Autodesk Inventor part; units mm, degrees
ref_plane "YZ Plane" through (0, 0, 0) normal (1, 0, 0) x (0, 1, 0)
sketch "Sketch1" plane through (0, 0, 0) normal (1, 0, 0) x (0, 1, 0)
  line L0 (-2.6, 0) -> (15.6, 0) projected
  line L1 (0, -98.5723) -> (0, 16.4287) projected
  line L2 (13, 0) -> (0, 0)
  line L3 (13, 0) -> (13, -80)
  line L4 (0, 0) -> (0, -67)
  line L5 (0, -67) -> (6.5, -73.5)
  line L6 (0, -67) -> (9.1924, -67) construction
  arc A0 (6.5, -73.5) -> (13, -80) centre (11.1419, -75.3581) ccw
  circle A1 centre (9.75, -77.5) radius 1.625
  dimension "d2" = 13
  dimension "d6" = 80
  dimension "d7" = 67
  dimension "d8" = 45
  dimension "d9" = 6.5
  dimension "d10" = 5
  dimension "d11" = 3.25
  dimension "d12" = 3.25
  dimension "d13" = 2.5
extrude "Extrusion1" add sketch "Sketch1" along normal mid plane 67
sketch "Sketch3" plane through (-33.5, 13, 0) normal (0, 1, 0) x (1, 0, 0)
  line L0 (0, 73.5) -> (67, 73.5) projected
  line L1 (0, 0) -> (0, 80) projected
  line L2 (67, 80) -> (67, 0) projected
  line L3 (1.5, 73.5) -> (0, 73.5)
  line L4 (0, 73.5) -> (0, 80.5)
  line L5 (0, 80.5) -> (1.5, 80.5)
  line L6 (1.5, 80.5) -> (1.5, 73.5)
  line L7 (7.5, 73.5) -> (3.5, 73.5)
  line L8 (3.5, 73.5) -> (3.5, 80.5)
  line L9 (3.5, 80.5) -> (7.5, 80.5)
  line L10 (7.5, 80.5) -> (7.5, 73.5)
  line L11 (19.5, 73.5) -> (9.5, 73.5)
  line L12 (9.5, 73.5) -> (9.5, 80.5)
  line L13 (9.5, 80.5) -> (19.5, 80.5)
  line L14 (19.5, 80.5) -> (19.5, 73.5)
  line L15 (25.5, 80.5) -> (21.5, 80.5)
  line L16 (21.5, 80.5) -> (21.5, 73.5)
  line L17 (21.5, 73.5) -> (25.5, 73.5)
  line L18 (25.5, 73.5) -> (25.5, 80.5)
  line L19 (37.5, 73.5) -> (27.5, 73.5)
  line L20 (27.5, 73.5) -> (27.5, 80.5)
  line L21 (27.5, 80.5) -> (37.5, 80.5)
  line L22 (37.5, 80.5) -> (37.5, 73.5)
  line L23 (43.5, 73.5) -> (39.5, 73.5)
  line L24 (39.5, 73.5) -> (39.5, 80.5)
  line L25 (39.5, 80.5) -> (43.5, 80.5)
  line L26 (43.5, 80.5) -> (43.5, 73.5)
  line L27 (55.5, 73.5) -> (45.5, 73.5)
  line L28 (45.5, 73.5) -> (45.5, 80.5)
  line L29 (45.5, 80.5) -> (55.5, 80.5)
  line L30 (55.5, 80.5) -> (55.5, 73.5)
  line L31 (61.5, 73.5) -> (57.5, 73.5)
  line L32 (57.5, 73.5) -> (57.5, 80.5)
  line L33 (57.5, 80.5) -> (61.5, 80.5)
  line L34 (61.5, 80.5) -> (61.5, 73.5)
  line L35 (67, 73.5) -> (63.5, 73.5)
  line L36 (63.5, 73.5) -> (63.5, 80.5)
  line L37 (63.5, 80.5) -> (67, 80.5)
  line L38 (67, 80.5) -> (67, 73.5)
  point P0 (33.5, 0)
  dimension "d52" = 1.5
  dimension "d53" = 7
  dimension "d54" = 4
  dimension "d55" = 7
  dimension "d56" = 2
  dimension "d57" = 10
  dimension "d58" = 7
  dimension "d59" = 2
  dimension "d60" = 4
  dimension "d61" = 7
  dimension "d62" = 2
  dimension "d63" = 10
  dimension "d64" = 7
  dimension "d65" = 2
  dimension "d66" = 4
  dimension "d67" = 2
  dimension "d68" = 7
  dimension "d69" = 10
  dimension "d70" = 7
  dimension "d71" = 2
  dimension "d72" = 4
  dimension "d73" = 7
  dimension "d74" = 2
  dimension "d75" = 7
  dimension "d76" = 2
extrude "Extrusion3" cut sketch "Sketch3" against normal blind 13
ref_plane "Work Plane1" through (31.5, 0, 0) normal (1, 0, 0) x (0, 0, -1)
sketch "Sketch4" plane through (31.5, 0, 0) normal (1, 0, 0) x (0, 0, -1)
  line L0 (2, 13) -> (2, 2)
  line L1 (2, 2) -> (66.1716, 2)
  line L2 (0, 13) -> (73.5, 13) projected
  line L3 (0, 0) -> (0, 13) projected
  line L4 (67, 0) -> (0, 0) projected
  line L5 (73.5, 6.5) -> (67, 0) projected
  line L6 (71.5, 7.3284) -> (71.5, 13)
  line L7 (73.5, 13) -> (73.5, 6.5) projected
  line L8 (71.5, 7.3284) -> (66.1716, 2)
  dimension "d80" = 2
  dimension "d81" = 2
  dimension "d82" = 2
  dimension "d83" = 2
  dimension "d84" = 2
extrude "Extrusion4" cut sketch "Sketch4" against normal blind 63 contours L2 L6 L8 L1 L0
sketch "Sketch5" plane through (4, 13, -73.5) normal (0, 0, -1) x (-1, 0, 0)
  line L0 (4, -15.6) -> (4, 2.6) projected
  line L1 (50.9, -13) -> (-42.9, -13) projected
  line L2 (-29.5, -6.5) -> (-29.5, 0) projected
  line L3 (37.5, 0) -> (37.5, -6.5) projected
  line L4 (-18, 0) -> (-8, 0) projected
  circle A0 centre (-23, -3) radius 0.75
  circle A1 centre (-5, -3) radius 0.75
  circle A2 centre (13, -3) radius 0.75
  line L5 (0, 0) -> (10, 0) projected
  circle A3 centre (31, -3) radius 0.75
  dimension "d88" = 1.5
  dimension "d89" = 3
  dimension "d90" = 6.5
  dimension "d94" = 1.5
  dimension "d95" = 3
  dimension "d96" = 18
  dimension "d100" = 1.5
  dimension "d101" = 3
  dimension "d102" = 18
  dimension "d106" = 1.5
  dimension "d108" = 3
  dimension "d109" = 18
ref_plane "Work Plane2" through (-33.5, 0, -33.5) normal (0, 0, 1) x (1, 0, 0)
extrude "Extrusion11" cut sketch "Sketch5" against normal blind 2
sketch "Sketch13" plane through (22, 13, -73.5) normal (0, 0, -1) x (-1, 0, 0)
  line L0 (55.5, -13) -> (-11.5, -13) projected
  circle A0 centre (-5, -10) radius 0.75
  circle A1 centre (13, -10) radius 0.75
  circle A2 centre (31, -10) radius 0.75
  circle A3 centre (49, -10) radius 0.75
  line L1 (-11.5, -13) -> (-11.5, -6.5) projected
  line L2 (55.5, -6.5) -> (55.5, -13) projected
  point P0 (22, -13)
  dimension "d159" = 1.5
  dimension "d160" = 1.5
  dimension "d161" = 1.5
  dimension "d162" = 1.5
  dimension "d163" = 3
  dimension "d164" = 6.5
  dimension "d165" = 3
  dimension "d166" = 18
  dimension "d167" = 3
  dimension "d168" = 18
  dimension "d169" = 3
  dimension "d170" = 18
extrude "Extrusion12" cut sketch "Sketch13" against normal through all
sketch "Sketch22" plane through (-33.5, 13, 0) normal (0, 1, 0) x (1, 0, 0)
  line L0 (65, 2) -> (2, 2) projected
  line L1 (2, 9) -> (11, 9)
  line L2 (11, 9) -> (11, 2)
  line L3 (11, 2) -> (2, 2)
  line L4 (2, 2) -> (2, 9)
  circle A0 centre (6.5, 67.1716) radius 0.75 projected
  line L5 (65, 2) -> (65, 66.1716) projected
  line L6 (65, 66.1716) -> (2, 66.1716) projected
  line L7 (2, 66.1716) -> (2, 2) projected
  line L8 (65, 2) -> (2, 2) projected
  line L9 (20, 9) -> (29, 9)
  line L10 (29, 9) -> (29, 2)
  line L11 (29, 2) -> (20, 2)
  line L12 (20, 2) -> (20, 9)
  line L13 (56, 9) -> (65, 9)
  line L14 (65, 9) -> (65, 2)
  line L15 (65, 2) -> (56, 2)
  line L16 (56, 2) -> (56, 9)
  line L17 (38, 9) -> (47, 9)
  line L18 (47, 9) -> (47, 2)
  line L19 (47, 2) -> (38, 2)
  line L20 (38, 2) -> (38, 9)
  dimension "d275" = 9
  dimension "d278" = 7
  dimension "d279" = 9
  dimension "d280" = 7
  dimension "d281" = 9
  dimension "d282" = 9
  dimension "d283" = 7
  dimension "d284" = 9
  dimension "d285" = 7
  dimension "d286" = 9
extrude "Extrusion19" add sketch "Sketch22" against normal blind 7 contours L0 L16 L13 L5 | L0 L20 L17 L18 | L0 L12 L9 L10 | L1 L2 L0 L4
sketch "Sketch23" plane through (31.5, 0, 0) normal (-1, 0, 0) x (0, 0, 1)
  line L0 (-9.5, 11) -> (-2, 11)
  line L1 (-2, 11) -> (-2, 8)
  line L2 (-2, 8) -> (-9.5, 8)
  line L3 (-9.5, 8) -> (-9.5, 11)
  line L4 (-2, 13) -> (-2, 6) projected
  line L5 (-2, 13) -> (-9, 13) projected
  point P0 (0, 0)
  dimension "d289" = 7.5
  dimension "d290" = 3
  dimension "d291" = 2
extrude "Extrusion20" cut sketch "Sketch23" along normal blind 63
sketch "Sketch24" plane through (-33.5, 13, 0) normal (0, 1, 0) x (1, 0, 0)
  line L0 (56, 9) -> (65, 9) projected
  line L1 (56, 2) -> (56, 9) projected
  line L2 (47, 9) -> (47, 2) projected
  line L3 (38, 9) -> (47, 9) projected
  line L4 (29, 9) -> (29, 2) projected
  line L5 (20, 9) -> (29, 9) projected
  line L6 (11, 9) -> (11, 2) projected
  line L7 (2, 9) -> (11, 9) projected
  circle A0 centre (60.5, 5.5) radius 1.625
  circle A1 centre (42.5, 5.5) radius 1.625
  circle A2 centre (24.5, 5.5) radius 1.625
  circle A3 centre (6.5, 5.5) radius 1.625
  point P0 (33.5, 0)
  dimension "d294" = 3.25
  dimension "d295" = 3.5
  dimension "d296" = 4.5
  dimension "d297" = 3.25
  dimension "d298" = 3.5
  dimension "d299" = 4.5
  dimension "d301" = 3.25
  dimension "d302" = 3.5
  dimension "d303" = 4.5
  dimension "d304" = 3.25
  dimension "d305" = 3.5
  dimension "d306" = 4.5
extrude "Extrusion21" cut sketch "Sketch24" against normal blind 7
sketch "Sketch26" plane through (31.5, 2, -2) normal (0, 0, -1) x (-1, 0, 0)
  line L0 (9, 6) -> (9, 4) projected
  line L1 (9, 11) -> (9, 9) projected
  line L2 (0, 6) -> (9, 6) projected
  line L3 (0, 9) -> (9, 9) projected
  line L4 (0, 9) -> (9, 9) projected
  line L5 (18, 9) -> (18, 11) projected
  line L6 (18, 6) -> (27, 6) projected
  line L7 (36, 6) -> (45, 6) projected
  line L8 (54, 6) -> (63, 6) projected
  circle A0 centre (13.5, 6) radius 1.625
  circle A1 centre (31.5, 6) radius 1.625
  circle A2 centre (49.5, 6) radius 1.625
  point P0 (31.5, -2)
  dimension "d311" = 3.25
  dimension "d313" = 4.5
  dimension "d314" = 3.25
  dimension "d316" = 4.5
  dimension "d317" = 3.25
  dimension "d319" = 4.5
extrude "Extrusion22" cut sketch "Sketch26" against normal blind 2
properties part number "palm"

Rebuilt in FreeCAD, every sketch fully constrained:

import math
import FreeCAD as App
import Part
import Sketcher
Q = App.Units.Quantity

doc = App.newDocument("Part")
body = doc.addObject("PartDesign::Body", "Body")

# Sketch on YZ plane
sketch1 = doc.addObject("Sketcher::SketchObject", "Sketch")
body.addObject(sketch1)
sketch1.AttachmentSupport = (doc.YZ_Plane, [""])
sketch1.MapMode = "FlatFace"
sketch1.addGeometry(Part.LineSegment(App.Vector(13, 0, 0), App.Vector(0, 0, 0)), False)
sketch1.addGeometry(Part.LineSegment(App.Vector(0, 0, 0), App.Vector(0, -67, 0)), False)
sketch1.addGeometry(Part.LineSegment(App.Vector(0, -67, 0), App.Vector(6.5, -73.5, 0)), False)
sketch1.addGeometry(Part.ArcOfCircle(Part.Circle(App.Vector(11.1419, -75.3581, 0), App.Vector(0, 0, 1), 4.999977), math.radians(158.184333), math.radians(291.815667)), False)
sketch1.addGeometry(Part.LineSegment(App.Vector(13, -80, 0), App.Vector(13, 0, 0)), False)
sketch1.addGeometry(Part.Circle(App.Vector(9.75, -77.5, 0), App.Vector(0, 0, 1), 1.625), False)
sketch1.addConstraint(Sketcher.Constraint("Coincident", 0, 2, 1, 1))
sketch1.addConstraint(Sketcher.Constraint("Coincident", 1, 2, 2, 1))
sketch1.addConstraint(Sketcher.Constraint("Coincident", 2, 2, 3, 1))
sketch1.addConstraint(Sketcher.Constraint("Coincident", 3, 2, 4, 1))
sketch1.addConstraint(Sketcher.Constraint("Coincident", 4, 2, 0, 1))
sketch1.addConstraint(Sketcher.Constraint("Horizontal", 0))
sketch1.addConstraint(Sketcher.Constraint("Vertical", 1))
sketch1.addConstraint(Sketcher.Constraint("Vertical", 4))
sketch1.addConstraint(Sketcher.Constraint("Coincident", 0, 2, -1, 1))
sketch1.addConstraint(Sketcher.Constraint("Radius", 3, 5.0))
sketch1.addConstraint(Sketcher.Constraint("Diameter", 5, 3.25))
sketch1.addConstraint(Sketcher.Constraint("DistanceX", 0, 2, 0, 1, 13.0))
sketch1.addConstraint(Sketcher.Constraint("DistanceY", 1, 2, 1, 1, 67.0))
sketch1.addConstraint(Sketcher.Constraint("DistanceY", 4, 1, 4, 2, 80.0))
sketch1.addConstraint(Sketcher.Constraint("Angle", 2, Q("-45 deg")))
sketch1.addConstraint(Sketcher.Constraint("DistanceX", -1, 1, 2, 2, 6.5))
sketch1.addConstraint(Sketcher.Constraint("DistanceY", 3, 2, 5, 3, 2.5))
sketch1.addConstraint(Sketcher.Constraint("DistanceX", 2, 2, 5, 3, 3.25))
pad1 = doc.addObject("PartDesign::Pad", "Pad")
body.addObject(pad1)
pad1.Profile = sketch1
pad1.Length = 67
pad1.Midplane = True

# Sketch on XZ plane
sketch2 = doc.addObject("Sketcher::SketchObject", "Sketch001")
body.addObject(sketch2)
sketch2.AttachmentSupport = (doc.XZ_Plane, [""])
sketch2.MapMode = "FlatFace"
sketch2.AttachmentOffset = App.Placement(App.Vector(0, 0, -13), App.Rotation())
sketch2.addGeometry(Part.LineSegment(App.Vector(-33.5, -80.5, 0), App.Vector(-33.5, -73.5, 0)), False)
sketch2.addGeometry(Part.LineSegment(App.Vector(-33.5, -73.5, 0), App.Vector(-32, -73.5, 0)), False)
sketch2.addGeometry(Part.LineSegment(App.Vector(-32, -73.5, 0), App.Vector(-32, -80.5, 0)), False)
sketch2.addGeometry(Part.LineSegment(App.Vector(-32, -80.5, 0), App.Vector(-33.5, -80.5, 0)), False)
sketch2.addGeometry(Part.LineSegment(App.Vector(30, -80.5, 0), App.Vector(30, -73.5, 0)), False)
sketch2.addGeometry(Part.LineSegment(App.Vector(30, -73.5, 0), App.Vector(33.5, -73.5, 0)), False)
sketch2.addGeometry(Part.LineSegment(App.Vector(33.5, -73.5, 0), App.Vector(33.5, -80.5, 0)), False)
sketch2.addGeometry(Part.LineSegment(App.Vector(33.5, -80.5, 0), App.Vector(30, -80.5, 0)), False)
sketch2.addGeometry(Part.LineSegment(App.Vector(24, -80.5, 0), App.Vector(24, -73.5, 0)), False)
sketch2.addGeometry(Part.LineSegment(App.Vector(24, -73.5, 0), App.Vector(28, -73.5, 0)), False)
sketch2.addGeometry(Part.LineSegment(App.Vector(28, -73.5, 0), App.Vector(28, -80.5, 0)), False)
sketch2.addGeometry(Part.LineSegment(App.Vector(28, -80.5, 0), App.Vector(24, -80.5, 0)), False)
sketch2.addGeometry(Part.LineSegment(App.Vector(12, -80.5, 0), App.Vector(12, -73.5, 0)), False)
sketch2.addGeometry(Part.LineSegment(App.Vector(12, -73.5, 0), App.Vector(22, -73.5, 0)), False)
sketch2.addGeometry(Part.LineSegment(App.Vector(22, -73.5, 0), App.Vector(22, -80.5, 0)), False)
sketch2.addGeometry(Part.LineSegment(App.Vector(22, -80.5, 0), App.Vector(12, -80.5, 0)), False)
sketch2.addGeometry(Part.LineSegment(App.Vector(6, -80.5, 0), App.Vector(6, -73.5, 0)), False)
sketch2.addGeometry(Part.LineSegment(App.Vector(6, -73.5, 0), App.Vector(10, -73.5, 0)), False)
sketch2.addGeometry(Part.LineSegment(App.Vector(10, -73.5, 0), App.Vector(10, -80.5, 0)), False)
sketch2.addGeometry(Part.LineSegment(App.Vector(10, -80.5, 0), App.Vector(6, -80.5, 0)), False)
sketch2.addGeometry(Part.LineSegment(App.Vector(-6, -80.5, 0), App.Vector(-6, -73.5, 0)), False)
sketch2.addGeometry(Part.LineSegment(App.Vector(-6, -73.5, 0), App.Vector(4, -73.5, 0)), False)
sketch2.addGeometry(Part.LineSegment(App.Vector(4, -73.5, 0), App.Vector(4, -80.5, 0)), False)
sketch2.addGeometry(Part.LineSegment(App.Vector(4, -80.5, 0), App.Vector(-6, -80.5, 0)), False)
sketch2.addGeometry(Part.LineSegment(App.Vector(-12, -80.5, 0), App.Vector(-12, -73.5, 0)), False)
sketch2.addGeometry(Part.LineSegment(App.Vector(-12, -73.5, 0), App.Vector(-8, -73.5, 0)), False)
sketch2.addGeometry(Part.LineSegment(App.Vector(-8, -73.5, 0), App.Vector(-8, -80.5, 0)), False)
sketch2.addGeometry(Part.LineSegment(App.Vector(-8, -80.5, 0), App.Vector(-12, -80.5, 0)), False)
sketch2.addGeometry(Part.LineSegment(App.Vector(-24, -80.5, 0), App.Vector(-24, -73.5, 0)), False)
sketch2.addGeometry(Part.LineSegment(App.Vector(-24, -73.5, 0), App.Vector(-14, -73.5, 0)), False)
sketch2.addGeometry(Part.LineSegment(App.Vector(-14, -73.5, 0), App.Vector(-14, -80.5, 0)), False)
sketch2.addGeometry(Part.LineSegment(App.Vector(-14, -80.5, 0), App.Vector(-24, -80.5, 0)), False)
sketch2.addGeometry(Part.LineSegment(App.Vector(-30, -80.5, 0), App.Vector(-30, -73.5, 0)), False)
sketch2.addGeometry(Part.LineSegment(App.Vector(-30, -73.5, 0), App.Vector(-26, -73.5, 0)), False)
sketch2.addGeometry(Part.LineSegment(App.Vector(-26, -73.5, 0), App.Vector(-26, -80.5, 0)), False)
sketch2.addGeometry(Part.LineSegment(App.Vector(-26, -80.5, 0), App.Vector(-30, -80.5, 0)), False)
sketch2.addConstraint(Sketcher.Constraint("Coincident", 0, 2, 1, 1))
sketch2.addConstraint(Sketcher.Constraint("Coincident", 1, 2, 2, 1))
sketch2.addConstraint(Sketcher.Constraint("Coincident", 2, 2, 3, 1))
sketch2.addConstraint(Sketcher.Constraint("Coincident", 3, 2, 0, 1))
sketch2.addConstraint(Sketcher.Constraint("Coincident", 4, 2, 5, 1))
sketch2.addConstraint(Sketcher.Constraint("Coincident", 5, 2, 6, 1))
sketch2.addConstraint(Sketcher.Constraint("Coincident", 6, 2, 7, 1))
sketch2.addConstraint(Sketcher.Constraint("Coincident", 7, 2, 4, 1))
sketch2.addConstraint(Sketcher.Constraint("Coincident", 8, 2, 9, 1))
sketch2.addConstraint(Sketcher.Constraint("Coincident", 9, 2, 10, 1))
sketch2.addConstraint(Sketcher.Constraint("Coincident", 10, 2, 11, 1))
sketch2.addConstraint(Sketcher.Constraint("Coincident", 11, 2, 8, 1))
sketch2.addConstraint(Sketcher.Constraint("Coincident", 12, 2, 13, 1))
sketch2.addConstraint(Sketcher.Constraint("Coincident", 13, 2, 14, 1))
sketch2.addConstraint(Sketcher.Constraint("Coincident", 14, 2, 15, 1))
sketch2.addConstraint(Sketcher.Constraint("Coincident", 15, 2, 12, 1))
sketch2.addConstraint(Sketcher.Constraint("Coincident", 16, 2, 17, 1))
sketch2.addConstraint(Sketcher.Constraint("Coincident", 17, 2, 18, 1))
sketch2.addConstraint(Sketcher.Constraint("Coincident", 18, 2, 19, 1))
sketch2.addConstraint(Sketcher.Constraint("Coincident", 19, 2, 16, 1))
sketch2.addConstraint(Sketcher.Constraint("Coincident", 20, 2, 21, 1))
sketch2.addConstraint(Sketcher.Constraint("Coincident", 21, 2, 22, 1))
sketch2.addConstraint(Sketcher.Constraint("Coincident", 22, 2, 23, 1))
sketch2.addConstraint(Sketcher.Constraint("Coincident", 23, 2, 20, 1))
sketch2.addConstraint(Sketcher.Constraint("Coincident", 24, 2, 25, 1))
sketch2.addConstraint(Sketcher.Constraint("Coincident", 25, 2, 26, 1))
sketch2.addConstraint(Sketcher.Constraint("Coincident", 26, 2, 27, 1))
sketch2.addConstraint(Sketcher.Constraint("Coincident", 27, 2, 24, 1))
sketch2.addConstraint(Sketcher.Constraint("Coincident", 28, 2, 29, 1))
sketch2.addConstraint(Sketcher.Constraint("Coincident", 29, 2, 30, 1))
sketch2.addConstraint(Sketcher.Constraint("Coincident", 30, 2, 31, 1))
sketch2.addConstraint(Sketcher.Constraint("Coincident", 31, 2, 28, 1))
sketch2.addConstraint(Sketcher.Constraint("Coincident", 32, 2, 33, 1))
sketch2.addConstraint(Sketcher.Constraint("Coincident", 33, 2, 34, 1))
sketch2.addConstraint(Sketcher.Constraint("Coincident", 34, 2, 35, 1))
sketch2.addConstraint(Sketcher.Constraint("Coincident", 35, 2, 32, 1))
sketch2.addConstraint(Sketcher.Constraint("Vertical", 0))
sketch2.addConstraint(Sketcher.Constraint("Horizontal", 1))
sketch2.addConstraint(Sketcher.Constraint("Vertical", 2))
sketch2.addConstraint(Sketcher.Constraint("Horizontal", 3))
sketch2.addConstraint(Sketcher.Constraint("Vertical", 4))
sketch2.addConstraint(Sketcher.Constraint("Horizontal", 5))
sketch2.addConstraint(Sketcher.Constraint("Vertical", 6))
sketch2.addConstraint(Sketcher.Constraint("Horizontal", 7))
sketch2.addConstraint(Sketcher.Constraint("Vertical", 8))
sketch2.addConstraint(Sketcher.Constraint("Horizontal", 9))
sketch2.addConstraint(Sketcher.Constraint("Vertical", 10))
sketch2.addConstraint(Sketcher.Constraint("Horizontal", 11))
sketch2.addConstraint(Sketcher.Constraint("Vertical", 12))
sketch2.addConstraint(Sketcher.Constraint("Horizontal", 13))
sketch2.addConstraint(Sketcher.Constraint("Vertical", 14))
sketch2.addConstraint(Sketcher.Constraint("Horizontal", 15))
sketch2.addConstraint(Sketcher.Constraint("Vertical", 16))
sketch2.addConstraint(Sketcher.Constraint("Horizontal", 17))
sketch2.addConstraint(Sketcher.Constraint("Vertical", 18))
sketch2.addConstraint(Sketcher.Constraint("Horizontal", 19))
sketch2.addConstraint(Sketcher.Constraint("Vertical", 20))
sketch2.addConstraint(Sketcher.Constraint("Horizontal", 21))
sketch2.addConstraint(Sketcher.Constraint("Vertical", 22))
sketch2.addConstraint(Sketcher.Constraint("Horizontal", 23))
sketch2.addConstraint(Sketcher.Constraint("Vertical", 24))
sketch2.addConstraint(Sketcher.Constraint("Horizontal", 25))
sketch2.addConstraint(Sketcher.Constraint("Vertical", 26))
sketch2.addConstraint(Sketcher.Constraint("Horizontal", 27))
sketch2.addConstraint(Sketcher.Constraint("Vertical", 28))
sketch2.addConstraint(Sketcher.Constraint("Horizontal", 29))
sketch2.addConstraint(Sketcher.Constraint("Vertical", 30))
sketch2.addConstraint(Sketcher.Constraint("Horizontal", 31))
sketch2.addConstraint(Sketcher.Constraint("Vertical", 32))
sketch2.addConstraint(Sketcher.Constraint("Horizontal", 33))
sketch2.addConstraint(Sketcher.Constraint("Vertical", 34))
sketch2.addConstraint(Sketcher.Constraint("Horizontal", 35))
sketch2.addConstraint(Sketcher.Constraint("Symmetric", 0, 2, 5, 2, -2))
sketch2.addConstraint(Sketcher.Constraint("Symmetric", 16, 2, 20, 2, -2))
sketch2.addConstraint(Sketcher.Constraint("Symmetric", 12, 2, 24, 2, -2))
sketch2.addConstraint(Sketcher.Constraint("Symmetric", 8, 2, 28, 2, -2))
sketch2.addConstraint(Sketcher.Constraint("Symmetric", 4, 2, 32, 2, -2))
sketch2.addConstraint(Sketcher.Constraint("Horizontal", 3, 2, 6, 2))
sketch2.addConstraint(Sketcher.Constraint("Horizontal", 5, 2, 8, 2))
sketch2.addConstraint(Sketcher.Constraint("Horizontal", 7, 2, 10, 2))
sketch2.addConstraint(Sketcher.Constraint("Horizontal", 9, 2, 12, 2))
sketch2.addConstraint(Sketcher.Constraint("Horizontal", 11, 2, 14, 2))
sketch2.addConstraint(Sketcher.Constraint("Horizontal", 13, 2, 16, 2))
sketch2.addConstraint(Sketcher.Constraint("Horizontal", 15, 2, 18, 2))
sketch2.addConstraint(Sketcher.Constraint("Horizontal", 19, 2, 22, 2))
sketch2.addConstraint(Sketcher.Constraint("Horizontal", 23, 2, 26, 2))
sketch2.addConstraint(Sketcher.Constraint("Horizontal", 27, 2, 30, 2))
sketch2.addConstraint(Sketcher.Constraint("Horizontal", 31, 2, 34, 2))
sketch2.addConstraint(Sketcher.Constraint("Equal", 11, 17))
sketch2.addConstraint(Sketcher.Constraint("Equal", 15, 21))
sketch2.addConstraint(Sketcher.Constraint("Equal", 19, 25))
sketch2.addConstraint(Sketcher.Constraint("Equal", 23, 29))
sketch2.addConstraint(Sketcher.Constraint("Equal", 27, 33))
sketch2.addConstraint(Sketcher.Constraint("DistanceX", 9, 1, 9, 2, 4.0))
sketch2.addConstraint(Sketcher.Constraint("DistanceX", 13, 1, 13, 2, 10.0))
sketch2.addConstraint(Sketcher.Constraint("DistanceY", 0, 1, 0, 2, 7.0))
sketch2.addConstraint(Sketcher.Constraint("DistanceX", 1, 1, 1, 2, 1.5))
sketch2.addConstraint(Sketcher.Constraint("DistanceX", -1, 1, 17, 2, 10.0))
sketch2.addConstraint(Sketcher.Constraint("DistanceX", 9, 2, 4, 2, 2.0))
sketch2.addConstraint(Sketcher.Constraint("DistanceX", 13, 2, 8, 2, 2.0))
sketch2.addConstraint(Sketcher.Constraint("DistanceX", 17, 2, 12, 2, 2.0))
sketch2.addConstraint(Sketcher.Constraint("DistanceX", 1, 2, 32, 2, 2.0))
sketch2.addConstraint(Sketcher.Constraint("DistanceY", 0, 2, -1, 1, 73.5))
pocket1 = doc.addObject("PartDesign::Pocket", "Pocket")
body.addObject(pocket1)
pocket1.Profile = sketch2
pocket1.Length = 13
pocket1.Reversed = True

# Sketch on YZ plane
sketch3 = doc.addObject("Sketcher::SketchObject", "Sketch002")
body.addObject(sketch3)
sketch3.AttachmentSupport = (doc.YZ_Plane, [""])
sketch3.MapMode = "FlatFace"
sketch3.AttachmentOffset = App.Placement(App.Vector(0, 0, 31.5), App.Rotation())
sketch3.addGeometry(Part.LineSegment(App.Vector(13, -71.5, 0), App.Vector(13, -2, 0)), False)
sketch3.addGeometry(Part.LineSegment(App.Vector(13, -2, 0), App.Vector(2, -2, 0)), False)
sketch3.addGeometry(Part.LineSegment(App.Vector(2, -2, 0), App.Vector(2, -66.1716, 0)), False)
sketch3.addGeometry(Part.LineSegment(App.Vector(2, -66.1716, 0), App.Vector(7.3284, -71.5, 0)), False)
sketch3.addGeometry(Part.LineSegment(App.Vector(7.3284, -71.5, 0), App.Vector(13, -71.5, 0)), False)
sketch3.addConstraint(Sketcher.Constraint("Coincident", 0, 2, 1, 1))
sketch3.addConstraint(Sketcher.Constraint("Coincident", 1, 2, 2, 1))
sketch3.addConstraint(Sketcher.Constraint("Coincident", 2, 2, 3, 1))
sketch3.addConstraint(Sketcher.Constraint("Coincident", 3, 2, 4, 1))
sketch3.addConstraint(Sketcher.Constraint("Coincident", 4, 2, 0, 1))
sketch3.addConstraint(Sketcher.Constraint("Vertical", 0))
sketch3.addConstraint(Sketcher.Constraint("Horizontal", 1))
sketch3.addConstraint(Sketcher.Constraint("Vertical", 2))
sketch3.addConstraint(Sketcher.Constraint("Horizontal", 4))
sketch3.addConstraint(Sketcher.Constraint("DistanceY", 0, 2, -1, 1, 2.0))
sketch3.addConstraint(Sketcher.Constraint("DistanceX", -1, 1, 1, 2, 2.0))
sketch3.addConstraint(Sketcher.Constraint("DistanceX", 1, 2, 1, 1, 11.0))
sketch3.addConstraint(Sketcher.Constraint("Angle", 3, Q("-45 deg")))
sketch3.addConstraint(Sketcher.Constraint("DistanceY", 0, 1, 0, 2, 69.5))
sketch3.addConstraint(Sketcher.Constraint("DistanceX", 4, 1, 4, 2, 5.6716))
pocket2 = doc.addObject("PartDesign::Pocket", "Pocket001")
body.addObject(pocket2)
pocket2.Profile = sketch3
pocket2.Length = 63

# Sketch on XY plane
sketch4 = doc.addObject("Sketcher::SketchObject", "Sketch003")
body.addObject(sketch4)
sketch4.AttachmentSupport = (doc.XY_Plane, [""])
sketch4.MapMode = "FlatFace"
sketch4.AttachmentOffset = App.Placement(App.Vector(0, 0, -73.5), App.Rotation())
sketch4.addGeometry(Part.Circle(App.Vector(27, 10, 0), App.Vector(0, 0, 1), 0.75), False)
sketch4.addGeometry(Part.Circle(App.Vector(9, 10, 0), App.Vector(0, 0, 1), 0.75), False)
sketch4.addGeometry(Part.Circle(App.Vector(-9, 10, 0), App.Vector(0, 0, 1), 0.75), False)
sketch4.addGeometry(Part.Circle(App.Vector(-27, 10, 0), App.Vector(0, 0, 1), 0.75), False)
sketch4.addConstraint(Sketcher.Constraint("Equal", 0, 1))
sketch4.addConstraint(Sketcher.Constraint("Equal", 1, 2))
sketch4.addConstraint(Sketcher.Constraint("Equal", 2, 3))
sketch4.addConstraint(Sketcher.Constraint("Symmetric", 1, 3, 2, 3, -2))
sketch4.addConstraint(Sketcher.Constraint("Symmetric", 0, 3, 3, 3, -2))
sketch4.addConstraint(Sketcher.Constraint("Horizontal", 0, 3, 1, 3))
sketch4.addConstraint(Sketcher.Constraint("Diameter", 0, 1.5))
sketch4.addConstraint(Sketcher.Constraint("DistanceX", 1, 3, 0, 3, 18.0))
sketch4.addConstraint(Sketcher.Constraint("DistanceX", 2, 3, 1, 3, 18.0))
sketch4.addConstraint(Sketcher.Constraint("DistanceY", -1, 1, 0, 3, 10.0))
pocket3 = doc.addObject("PartDesign::Pocket", "Pocket002")
body.addObject(pocket3)
pocket3.Profile = sketch4
pocket3.Length = 2
pocket3.Reversed = True

# Sketch on XY plane
sketch5 = doc.addObject("Sketcher::SketchObject", "Sketch004")
body.addObject(sketch5)
sketch5.AttachmentSupport = (doc.XY_Plane, [""])
sketch5.MapMode = "FlatFace"
sketch5.AttachmentOffset = App.Placement(App.Vector(0, 0, -73.5), App.Rotation())
sketch5.addGeometry(Part.Circle(App.Vector(27, 3, 0), App.Vector(0, 0, 1), 0.75), False)
sketch5.addGeometry(Part.Circle(App.Vector(9, 3, 0), App.Vector(0, 0, 1), 0.75), False)
sketch5.addGeometry(Part.Circle(App.Vector(-9, 3, 0), App.Vector(0, 0, 1), 0.75), False)
sketch5.addGeometry(Part.Circle(App.Vector(-27, 3, 0), App.Vector(0, 0, 1), 0.75), False)
sketch5.addConstraint(Sketcher.Constraint("Equal", 0, 1))
sketch5.addConstraint(Sketcher.Constraint("Equal", 1, 2))
sketch5.addConstraint(Sketcher.Constraint("Equal", 2, 3))
sketch5.addConstraint(Sketcher.Constraint("Symmetric", 1, 3, 2, 3, -2))
sketch5.addConstraint(Sketcher.Constraint("Symmetric", 0, 3, 3, 3, -2))
sketch5.addConstraint(Sketcher.Constraint("Horizontal", 0, 3, 1, 3))
sketch5.addConstraint(Sketcher.Constraint("Diameter", 0, 1.5))
sketch5.addConstraint(Sketcher.Constraint("DistanceY", -1, 1, 0, 3, 3.0))
sketch5.addConstraint(Sketcher.Constraint("DistanceX", 1, 3, 0, 3, 18.0))
sketch5.addConstraint(Sketcher.Constraint("DistanceX", 2, 3, 1, 3, 18.0))
pocket4 = doc.addObject("PartDesign::Pocket", "Pocket003")
body.addObject(pocket4)
pocket4.Profile = sketch5
pocket4.Type = "ThroughAll"
pocket4.Reversed = True

# Sketch on XZ plane
sketch6 = doc.addObject("Sketcher::SketchObject", "Sketch005")
body.addObject(sketch6)
sketch6.AttachmentSupport = (doc.XZ_Plane, [""])
sketch6.MapMode = "FlatFace"
sketch6.AttachmentOffset = App.Placement(App.Vector(0, 0, -13), App.Rotation())
sketch6.addGeometry(Part.LineSegment(App.Vector(22.5, -2, 0), App.Vector(31.5, -2, 0)), False)
sketch6.addGeometry(Part.LineSegment(App.Vector(31.5, -2, 0), App.Vector(31.5, -9, 0)), False)
sketch6.addGeometry(Part.LineSegment(App.Vector(31.5, -9, 0), App.Vector(22.5, -9, 0)), False)
sketch6.addGeometry(Part.LineSegment(App.Vector(22.5, -9, 0), App.Vector(22.5, -2, 0)), False)
sketch6.addGeometry(Part.LineSegment(App.Vector(4.5, -2, 0), App.Vector(13.5, -2, 0)), False)
sketch6.addGeometry(Part.LineSegment(App.Vector(13.5, -2, 0), App.Vector(13.5, -9, 0)), False)
sketch6.addGeometry(Part.LineSegment(App.Vector(13.5, -9, 0), App.Vector(4.5, -9, 0)), False)
sketch6.addGeometry(Part.LineSegment(App.Vector(4.5, -9, 0), App.Vector(4.5, -2, 0)), False)
sketch6.addGeometry(Part.LineSegment(App.Vector(-13.5, -2, 0), App.Vector(-4.5, -2, 0)), False)
sketch6.addGeometry(Part.LineSegment(App.Vector(-4.5, -2, 0), App.Vector(-4.5, -9, 0)), False)
sketch6.addGeometry(Part.LineSegment(App.Vector(-4.5, -9, 0), App.Vector(-13.5, -9, 0)), False)
sketch6.addGeometry(Part.LineSegment(App.Vector(-13.5, -9, 0), App.Vector(-13.5, -2, 0)), False)
sketch6.addGeometry(Part.LineSegment(App.Vector(-22.5, -9, 0), App.Vector(-31.5, -9, 0)), False)
sketch6.addGeometry(Part.LineSegment(App.Vector(-31.5, -9, 0), App.Vector(-31.5, -2, 0)), False)
sketch6.addGeometry(Part.LineSegment(App.Vector(-31.5, -2, 0), App.Vector(-22.5, -2, 0)), False)
sketch6.addGeometry(Part.LineSegment(App.Vector(-22.5, -2, 0), App.Vector(-22.5, -9, 0)), False)
sketch6.addConstraint(Sketcher.Constraint("Coincident", 0, 2, 1, 1))
sketch6.addConstraint(Sketcher.Constraint("Coincident", 1, 2, 2, 1))
sketch6.addConstraint(Sketcher.Constraint("Coincident", 2, 2, 3, 1))
sketch6.addConstraint(Sketcher.Constraint("Coincident", 3, 2, 0, 1))
sketch6.addConstraint(Sketcher.Constraint("Coincident", 4, 2, 5, 1))
sketch6.addConstraint(Sketcher.Constraint("Coincident", 5, 2, 6, 1))
sketch6.addConstraint(Sketcher.Constraint("Coincident", 6, 2, 7, 1))
sketch6.addConstraint(Sketcher.Constraint("Coincident", 7, 2, 4, 1))
sketch6.addConstraint(Sketcher.Constraint("Coincident", 8, 2, 9, 1))
sketch6.addConstraint(Sketcher.Constraint("Coincident", 9, 2, 10, 1))
sketch6.addConstraint(Sketcher.Constraint("Coincident", 10, 2, 11, 1))
sketch6.addConstraint(Sketcher.Constraint("Coincident", 11, 2, 8, 1))
sketch6.addConstraint(Sketcher.Constraint("Coincident", 12, 2, 13, 1))
sketch6.addConstraint(Sketcher.Constraint("Coincident", 13, 2, 14, 1))
sketch6.addConstraint(Sketcher.Constraint("Coincident", 14, 2, 15, 1))
sketch6.addConstraint(Sketcher.Constraint("Coincident", 15, 2, 12, 1))
sketch6.addConstraint(Sketcher.Constraint("Horizontal", 0))
sketch6.addConstraint(Sketcher.Constraint("Vertical", 1))
sketch6.addConstraint(Sketcher.Constraint("Horizontal", 2))
sketch6.addConstraint(Sketcher.Constraint("Vertical", 3))
sketch6.addConstraint(Sketcher.Constraint("Horizontal", 4))
sketch6.addConstraint(Sketcher.Constraint("Vertical", 5))
sketch6.addConstraint(Sketcher.Constraint("Horizontal", 6))
sketch6.addConstraint(Sketcher.Constraint("Vertical", 7))
sketch6.addConstraint(Sketcher.Constraint("Horizontal", 8))
sketch6.addConstraint(Sketcher.Constraint("Vertical", 9))
sketch6.addConstraint(Sketcher.Constraint("Horizontal", 10))
sketch6.addConstraint(Sketcher.Constraint("Vertical", 11))
sketch6.addConstraint(Sketcher.Constraint("Horizontal", 12))
sketch6.addConstraint(Sketcher.Constraint("Vertical", 13))
sketch6.addConstraint(Sketcher.Constraint("Horizontal", 14))
sketch6.addConstraint(Sketcher.Constraint("Vertical", 15))
sketch6.addConstraint(Sketcher.Constraint("Symmetric", 7, 2, 8, 2, -2))
sketch6.addConstraint(Sketcher.Constraint("Symmetric", 5, 2, 10, 2, -2))
sketch6.addConstraint(Sketcher.Constraint("Symmetric", 1, 2, 12, 2, -2))
sketch6.addConstraint(Sketcher.Constraint("Symmetric", 3, 2, 14, 2, -2))
sketch6.addConstraint(Sketcher.Constraint("Horizontal", 3, 2, 4, 2))
sketch6.addConstraint(Sketcher.Constraint("Horizontal", 2, 2, 5, 2))
sketch6.addConstraint(Sketcher.Constraint("Equal", 2, 4))
sketch6.addConstraint(Sketcher.Constraint("DistanceX", 0, 1, 0, 2, 9.0))
sketch6.addConstraint(Sketcher.Constraint("DistanceY", 1, 2, 1, 1, 7.0))
sketch6.addConstraint(Sketcher.Constraint("DistanceY", 1, 2, -1, 1, 9.0))
sketch6.addConstraint(Sketcher.Constraint("DistanceX", 4, 2, 3, 2, 9.0))
sketch6.addConstraint(Sketcher.Constraint("DistanceX", 8, 2, 7, 2, 9.0))
pad2 = doc.addObject("PartDesign::Pad", "Pad001")
body.addObject(pad2)
pad2.Profile = sketch6
pad2.Length = 7

# Sketch on YZ plane
sketch7 = doc.addObject("Sketcher::SketchObject", "Sketch006")
body.addObject(sketch7)
sketch7.AttachmentSupport = (doc.YZ_Plane, [""])
sketch7.MapMode = "FlatFace"
sketch7.AttachmentOffset = App.Placement(App.Vector(0, 0, 31.5), App.Rotation())
sketch7.addGeometry(Part.LineSegment(App.Vector(11, -2, 0), App.Vector(11, -9.5, 0)), False)
sketch7.addGeometry(Part.LineSegment(App.Vector(11, -9.5, 0), App.Vector(8, -9.5, 0)), False)
sketch7.addGeometry(Part.LineSegment(App.Vector(8, -9.5, 0), App.Vector(8, -2, 0)), False)
sketch7.addGeometry(Part.LineSegment(App.Vector(8, -2, 0), App.Vector(11, -2, 0)), False)
sketch7.addConstraint(Sketcher.Constraint("Coincident", 0, 2, 1, 1))
sketch7.addConstraint(Sketcher.Constraint("Coincident", 1, 2, 2, 1))
sketch7.addConstraint(Sketcher.Constraint("Coincident", 2, 2, 3, 1))
sketch7.addConstraint(Sketcher.Constraint("Coincident", 3, 2, 0, 1))
sketch7.addConstraint(Sketcher.Constraint("Vertical", 0))
sketch7.addConstraint(Sketcher.Constraint("Horizontal", 1))
sketch7.addConstraint(Sketcher.Constraint("Vertical", 2))
sketch7.addConstraint(Sketcher.Constraint("Horizontal", 3))
sketch7.addConstraint(Sketcher.Constraint("DistanceX", 1, 2, 1, 1, 3.0))
sketch7.addConstraint(Sketcher.Constraint("DistanceY", 0, 2, 0, 1, 7.5))
sketch7.addConstraint(Sketcher.Constraint("DistanceY", 2, 2, -1, 1, 2.0))
sketch7.addConstraint(Sketcher.Constraint("DistanceX", -1, 1, 0, 2, 11.0))
pocket5 = doc.addObject("PartDesign::Pocket", "Pocket004")
body.addObject(pocket5)
pocket5.Profile = sketch7
pocket5.Length = 63

# Sketch on XZ plane
sketch8 = doc.addObject("Sketcher::SketchObject", "Sketch007")
body.addObject(sketch8)
sketch8.AttachmentSupport = (doc.XZ_Plane, [""])
sketch8.MapMode = "FlatFace"
sketch8.AttachmentOffset = App.Placement(App.Vector(0, 0, -13), App.Rotation())
sketch8.addGeometry(Part.Circle(App.Vector(27, -5.5, 0), App.Vector(0, 0, 1), 1.625), False)
sketch8.addGeometry(Part.Circle(App.Vector(9, -5.5, 0), App.Vector(0, 0, 1), 1.625), False)
sketch8.addGeometry(Part.Circle(App.Vector(-9, -5.5, 0), App.Vector(0, 0, 1), 1.625), False)
sketch8.addGeometry(Part.Circle(App.Vector(-27, -5.5, 0), App.Vector(0, 0, 1), 1.625), False)
sketch8.addConstraint(Sketcher.Constraint("Equal", 0, 1))
sketch8.addConstraint(Sketcher.Constraint("Equal", 1, 2))
sketch8.addConstraint(Sketcher.Constraint("Equal", 2, 3))
sketch8.addConstraint(Sketcher.Constraint("Symmetric", 1, 3, 2, 3, -2))
sketch8.addConstraint(Sketcher.Constraint("Symmetric", 0, 3, 3, 3, -2))
sketch8.addConstraint(Sketcher.Constraint("Horizontal", 0, 3, 1, 3))
sketch8.addConstraint(Sketcher.Constraint("Diameter", 0, 3.25))
sketch8.addConstraint(Sketcher.Constraint("DistanceX", -1, 1, 0, 3, 27.0))
sketch8.addConstraint(Sketcher.Constraint("DistanceX", -1, 1, 1, 3, 9.0))
sketch8.addConstraint(Sketcher.Constraint("DistanceY", 0, 3, -1, 1, 5.5))
pocket6 = doc.addObject("PartDesign::Pocket", "Pocket005")
body.addObject(pocket6)
pocket6.Profile = sketch8
pocket6.Length = 7
pocket6.Reversed = True

# Sketch on XY plane
sketch9 = doc.addObject("Sketcher::SketchObject", "Sketch008")
body.addObject(sketch9)
sketch9.AttachmentSupport = (doc.XY_Plane, [""])
sketch9.MapMode = "FlatFace"
sketch9.AttachmentOffset = App.Placement(App.Vector(0, 0, -2), App.Rotation())
sketch9.addGeometry(Part.Circle(App.Vector(18, 8, 0), App.Vector(0, 0, 1), 1.625), False)
sketch9.addGeometry(Part.Circle(App.Vector(0, 8, 0), App.Vector(0, 0, 1), 1.625), False)
sketch9.addGeometry(Part.Circle(App.Vector(-18, 8, 0), App.Vector(0, 0, 1), 1.625), False)
sketch9.addConstraint(Sketcher.Constraint("Equal", 0, 1))
sketch9.addConstraint(Sketcher.Constraint("Equal", 1, 2))
sketch9.addConstraint(Sketcher.Constraint("Symmetric", 0, 3, 2, 3, -2))
sketch9.addConstraint(Sketcher.Constraint("PointOnObject", 1, 3, -2))
sketch9.addConstraint(Sketcher.Constraint("Horizontal", 0, 3, 1, 3))
sketch9.addConstraint(Sketcher.Constraint("Diameter", 0, 3.25))
sketch9.addConstraint(Sketcher.Constraint("DistanceX", -1, 1, 0, 3, 18.0))
sketch9.addConstraint(Sketcher.Constraint("DistanceY", -1, 1, 0, 3, 8.0))
pocket7 = doc.addObject("PartDesign::Pocket", "Pocket006")
body.addObject(pocket7)
pocket7.Profile = sketch9
pocket7.Length = 2
pocket7.Reversed = True

doc.recompute()
